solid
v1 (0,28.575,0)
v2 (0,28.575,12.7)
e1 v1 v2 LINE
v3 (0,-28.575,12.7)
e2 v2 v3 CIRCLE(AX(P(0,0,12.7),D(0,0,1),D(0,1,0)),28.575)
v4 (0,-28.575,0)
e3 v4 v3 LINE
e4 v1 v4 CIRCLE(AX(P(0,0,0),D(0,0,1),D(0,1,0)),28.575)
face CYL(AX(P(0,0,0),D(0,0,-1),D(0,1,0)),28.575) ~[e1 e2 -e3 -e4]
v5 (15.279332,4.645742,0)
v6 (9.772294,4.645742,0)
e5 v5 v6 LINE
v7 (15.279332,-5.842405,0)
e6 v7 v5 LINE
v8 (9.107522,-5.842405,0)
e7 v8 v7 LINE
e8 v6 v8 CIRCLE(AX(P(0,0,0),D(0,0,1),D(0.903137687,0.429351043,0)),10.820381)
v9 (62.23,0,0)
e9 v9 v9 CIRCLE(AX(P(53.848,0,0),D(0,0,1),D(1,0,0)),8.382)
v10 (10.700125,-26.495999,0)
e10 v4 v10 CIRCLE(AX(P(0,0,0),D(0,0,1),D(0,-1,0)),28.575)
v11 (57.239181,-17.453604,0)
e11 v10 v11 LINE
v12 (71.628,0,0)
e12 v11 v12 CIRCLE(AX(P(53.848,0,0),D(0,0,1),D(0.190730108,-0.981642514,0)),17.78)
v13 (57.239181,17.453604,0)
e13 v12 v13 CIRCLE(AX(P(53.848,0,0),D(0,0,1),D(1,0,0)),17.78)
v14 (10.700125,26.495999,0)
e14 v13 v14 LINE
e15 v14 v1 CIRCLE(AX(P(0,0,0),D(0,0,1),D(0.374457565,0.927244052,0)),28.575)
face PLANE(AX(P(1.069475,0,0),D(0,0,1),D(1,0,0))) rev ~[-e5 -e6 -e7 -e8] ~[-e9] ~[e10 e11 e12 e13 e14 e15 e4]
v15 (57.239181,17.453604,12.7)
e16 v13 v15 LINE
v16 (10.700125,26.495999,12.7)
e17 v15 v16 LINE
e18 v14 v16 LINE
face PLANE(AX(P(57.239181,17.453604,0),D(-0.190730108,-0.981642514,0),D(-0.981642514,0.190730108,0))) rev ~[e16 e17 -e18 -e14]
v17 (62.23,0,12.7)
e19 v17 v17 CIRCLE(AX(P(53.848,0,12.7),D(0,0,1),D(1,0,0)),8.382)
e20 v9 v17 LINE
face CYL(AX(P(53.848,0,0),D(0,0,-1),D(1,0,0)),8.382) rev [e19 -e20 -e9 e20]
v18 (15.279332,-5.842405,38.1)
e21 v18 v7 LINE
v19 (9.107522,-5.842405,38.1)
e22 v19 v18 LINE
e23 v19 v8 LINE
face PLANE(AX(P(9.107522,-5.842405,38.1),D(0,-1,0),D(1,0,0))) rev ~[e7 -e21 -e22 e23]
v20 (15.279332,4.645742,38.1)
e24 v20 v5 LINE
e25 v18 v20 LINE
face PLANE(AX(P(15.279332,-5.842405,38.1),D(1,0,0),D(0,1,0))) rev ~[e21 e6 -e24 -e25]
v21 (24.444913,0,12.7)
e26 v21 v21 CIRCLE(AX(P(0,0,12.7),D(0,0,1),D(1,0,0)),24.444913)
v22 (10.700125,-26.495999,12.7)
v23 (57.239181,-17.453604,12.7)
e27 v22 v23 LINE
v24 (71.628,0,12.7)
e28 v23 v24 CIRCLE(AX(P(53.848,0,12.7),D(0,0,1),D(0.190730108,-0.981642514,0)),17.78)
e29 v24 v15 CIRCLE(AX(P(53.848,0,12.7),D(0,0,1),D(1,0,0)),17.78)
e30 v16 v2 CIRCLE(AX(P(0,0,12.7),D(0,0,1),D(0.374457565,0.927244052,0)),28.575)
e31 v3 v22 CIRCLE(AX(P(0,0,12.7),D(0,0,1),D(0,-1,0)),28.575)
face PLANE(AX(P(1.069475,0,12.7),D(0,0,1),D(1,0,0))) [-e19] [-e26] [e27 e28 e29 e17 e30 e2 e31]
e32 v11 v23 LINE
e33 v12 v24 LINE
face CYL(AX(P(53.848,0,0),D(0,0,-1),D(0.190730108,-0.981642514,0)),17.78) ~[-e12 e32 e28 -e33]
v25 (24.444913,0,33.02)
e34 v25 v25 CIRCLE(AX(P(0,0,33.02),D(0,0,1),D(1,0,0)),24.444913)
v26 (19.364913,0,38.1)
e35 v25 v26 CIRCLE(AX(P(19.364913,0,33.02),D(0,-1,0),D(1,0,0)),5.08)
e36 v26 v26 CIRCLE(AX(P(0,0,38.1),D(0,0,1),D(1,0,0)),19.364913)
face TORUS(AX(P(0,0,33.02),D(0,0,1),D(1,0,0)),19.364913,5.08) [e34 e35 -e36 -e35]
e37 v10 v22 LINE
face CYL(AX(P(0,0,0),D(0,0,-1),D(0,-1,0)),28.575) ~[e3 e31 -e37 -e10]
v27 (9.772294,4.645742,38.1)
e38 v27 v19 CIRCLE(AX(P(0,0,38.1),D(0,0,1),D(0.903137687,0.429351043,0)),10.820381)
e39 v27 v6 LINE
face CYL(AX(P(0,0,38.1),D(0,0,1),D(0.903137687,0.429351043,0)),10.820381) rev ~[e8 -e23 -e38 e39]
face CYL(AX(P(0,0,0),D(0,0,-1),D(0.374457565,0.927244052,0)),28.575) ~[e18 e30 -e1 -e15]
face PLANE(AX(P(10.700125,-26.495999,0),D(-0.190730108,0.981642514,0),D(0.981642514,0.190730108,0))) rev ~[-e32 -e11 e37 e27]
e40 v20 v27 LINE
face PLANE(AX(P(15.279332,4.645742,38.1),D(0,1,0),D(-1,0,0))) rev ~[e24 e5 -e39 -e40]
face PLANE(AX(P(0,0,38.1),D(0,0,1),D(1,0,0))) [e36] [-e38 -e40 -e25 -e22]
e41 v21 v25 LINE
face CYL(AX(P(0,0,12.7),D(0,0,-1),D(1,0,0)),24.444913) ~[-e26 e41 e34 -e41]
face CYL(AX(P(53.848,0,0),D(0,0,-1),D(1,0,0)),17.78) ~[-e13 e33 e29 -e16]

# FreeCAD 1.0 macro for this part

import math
import FreeCAD as App
import Part
import Sketcher

V = App.Vector
Q = App.Units.Quantity


def edges_at(feature, points):
    """Names of the edges that pass closest to the given points."""
    edges = feature.Shape.Edges
    near = lambda p: min(range(len(edges)), key=lambda i: edges[i].distToShape(Part.Vertex(*p))[0])
    return sorted({f"Edge{near(p) + 1}" for p in points})

doc = App.newDocument("Part")
params = doc.addObject("Spreadsheet::Sheet", "Params")
for row, (alias, value) in enumerate([
    ("sketch1_radius", "0.7 in"),
    ("sketch1_diameter", "0.66 in"),
    ("sketch1_radius2", "1.125 in"),
    ("pad1_length", "0.5 in"),
    ("pad2_length", "1 in"),
    ("fillet_radius", "0.2 in"),
], start=1):
    params.set(f"A{row}", alias)
    params.set(f"B{row}", "=" + value)
    params.setAlias(f"B{row}", alias)

body = doc.addObject("PartDesign::Body", "Body")

# Sketch on XY plane
sketch1 = body.newObject("Sketcher::SketchObject", "Sketch")
sketch1.AttachmentSupport = (doc.getObject("XY_Plane"), [""])
sketch1.MapMode = "FlatFace"
sketch1.addGeometry([
    Part.ArcOfCircle(Part.Circle(V(0, 0, 0), V(0, 0, 1), 29), math.radians(90), math.radians(270)),  # 0
    Part.ArcOfCircle(Part.Circle(V(0, 0, 0), V(0, 0, 1), 29), math.radians(-90), math.radians(-68)),  # 1
    Part.LineSegment(V(11, -26, 0), V(57, -17, 0)),  # 2
    Part.ArcOfCircle(Part.Circle(V(54, 0, 0), V(0, 0, 1), 18), math.radians(-79), math.radians(0)),  # 3
    Part.ArcOfCircle(Part.Circle(V(54, 0, 0), V(0, 0, 1), 18), math.radians(0), math.radians(79)),  # 4
    Part.LineSegment(V(57, 17, 0), V(11, 26, 0)),  # 5
    Part.ArcOfCircle(Part.Circle(V(0, 0, 0), V(0, 0, 1), 29), math.radians(68), math.radians(90)),  # 6
    Part.Circle(V(54, 0, 0), V(0, 0, 1), 8),  # 7
], False)
sketch1.addConstraint([
    Sketcher.Constraint("Tangent", 0, 2, 1, 1),
    Sketcher.Constraint("Coincident", 1, 2, 2, 1),
    Sketcher.Constraint("Tangent", 2, 2, 3, 1),
    Sketcher.Constraint("Tangent", 3, 2, 4, 1),
    Sketcher.Constraint("Tangent", 4, 2, 5, 1),
    Sketcher.Constraint("Coincident", 5, 2, 6, 1),
    Sketcher.Constraint("Tangent", 6, 2, 0, 1),
    Sketcher.Constraint("Coincident", 0, 3, -1, 1),
    Sketcher.Constraint("Coincident", 7, 3, 3, 3),
    Sketcher.Constraint("Equal", 0, 1),
    Sketcher.Constraint("Equal", 3, 4),
    Sketcher.Constraint("Equal", 1, 6),
    Sketcher.Constraint("Symmetric", 2, 2, 4, 2, -1),
    Sketcher.Constraint("PointOnObject", 0, 2, -2),
    Sketcher.Constraint("PointOnObject", 3, 2, -1),
    Sketcher.Constraint("PointOnObject", 6, 2, -2),
    Sketcher.Constraint("Radius", 3, Q("0.7 in")),
    Sketcher.Constraint("Diameter", 7, Q("0.66 in")),
    Sketcher.Constraint("Radius", 0, Q("1.125 in")),
    Sketcher.Constraint("DistanceX", -1, 1, 3, 3, Q("2.12 in")),
    Sketcher.Constraint("DistanceY", 1, 2, -1, 1, Q("26.495999 mm")),
])
sketch1.setExpression("Constraints[16]", "Params.sketch1_radius")
sketch1.setExpression("Constraints[17]", "Params.sketch1_diameter")
sketch1.setExpression("Constraints[18]", "Params.sketch1_radius2")
pad1 = body.newObject("PartDesign::Pad", "Pad")
pad1.Profile = sketch1
pad1.setExpression("Length", "Params.pad1_length")

# Sketch on XY plane
sketch2 = body.newObject("Sketcher::SketchObject", "Sketch001")
sketch2.AttachmentSupport = (doc.getObject("XY_Plane"), [""])
sketch2.MapMode = "FlatFace"
sketch2.AttachmentOffset = App.Placement(V(0, 0, 0.5 * 25.4), App.Rotation())
sketch2.addGeometry(Part.Circle(V(0, 0, 0), V(0, 0, 1), 24), False)
sketch2.addConstraint([
    Sketcher.Constraint("Coincident", 0, 3, -1, 1),
    Sketcher.Constraint("Diameter", 0, Q("48.889825 mm")),
])
pad2 = body.newObject("PartDesign::Pad", "Pad001")
pad2.Profile = sketch2
pad2.setExpression("Length", "Params.pad2_length")
doc.recompute()

fillet = body.newObject("PartDesign::Fillet", "Fillet")
fillet.Base = (pad2, edges_at(pad2, [(-24.445, 0, 38.1)]))
fillet.setExpression("Radius", "Params.fillet_radius")

# Sketch on XY plane
sketch3 = body.newObject("Sketcher::SketchObject", "Sketch002")
sketch3.AttachmentSupport = (doc.getObject("XY_Plane"), [""])
sketch3.MapMode = "FlatFace"
sketch3.AttachmentOffset = App.Placement(V(0, 0, 1.5 * 25.4), App.Rotation())
sketch3.addGeometry([
    Part.LineSegment(V(9, -6, 0), V(15, -6, 0)),
    Part.LineSegment(V(15, -6, 0), V(15, 5, 0)),
    Part.LineSegment(V(15, 5, 0), V(10, 5, 0)),
    Part.ArcOfCircle(Part.Circle(V(0, 0, 0), V(0, 0, 1), 11), math.radians(25), math.radians(327)),
], False)
sketch3.addConstraint([
    Sketcher.Constraint("Coincident", 0, 2, 1, 1),
    Sketcher.Constraint("Coincident", 1, 2, 2, 1),
    Sketcher.Constraint("Coincident", 2, 2, 3, 1),
    Sketcher.Constraint("Coincident", 3, 2, 0, 1),
    Sketcher.Constraint("Horizontal", 0),
    Sketcher.Constraint("Vertical", 1),
    Sketcher.Constraint("Horizontal", 2),
    Sketcher.Constraint("Coincident", 3, 3, -1, 1),
    Sketcher.Constraint("Radius", 3, Q("10.820381 mm")),
    Sketcher.Constraint("DistanceX", 0, 1, 0, 2, Q("6.17181 mm")),
    Sketcher.Constraint("DistanceX", 2, 2, 2, 1, Q("5.507038 mm")),
    Sketcher.Constraint("DistanceY", 1, 1, 1, 2, Q("10.488147 mm")),
])
pocket1 = body.newObject("PartDesign::Pocket", "Pocket")
pocket1.Profile = sketch3
pocket1.Type = "ThroughAll"

doc.recompute()
